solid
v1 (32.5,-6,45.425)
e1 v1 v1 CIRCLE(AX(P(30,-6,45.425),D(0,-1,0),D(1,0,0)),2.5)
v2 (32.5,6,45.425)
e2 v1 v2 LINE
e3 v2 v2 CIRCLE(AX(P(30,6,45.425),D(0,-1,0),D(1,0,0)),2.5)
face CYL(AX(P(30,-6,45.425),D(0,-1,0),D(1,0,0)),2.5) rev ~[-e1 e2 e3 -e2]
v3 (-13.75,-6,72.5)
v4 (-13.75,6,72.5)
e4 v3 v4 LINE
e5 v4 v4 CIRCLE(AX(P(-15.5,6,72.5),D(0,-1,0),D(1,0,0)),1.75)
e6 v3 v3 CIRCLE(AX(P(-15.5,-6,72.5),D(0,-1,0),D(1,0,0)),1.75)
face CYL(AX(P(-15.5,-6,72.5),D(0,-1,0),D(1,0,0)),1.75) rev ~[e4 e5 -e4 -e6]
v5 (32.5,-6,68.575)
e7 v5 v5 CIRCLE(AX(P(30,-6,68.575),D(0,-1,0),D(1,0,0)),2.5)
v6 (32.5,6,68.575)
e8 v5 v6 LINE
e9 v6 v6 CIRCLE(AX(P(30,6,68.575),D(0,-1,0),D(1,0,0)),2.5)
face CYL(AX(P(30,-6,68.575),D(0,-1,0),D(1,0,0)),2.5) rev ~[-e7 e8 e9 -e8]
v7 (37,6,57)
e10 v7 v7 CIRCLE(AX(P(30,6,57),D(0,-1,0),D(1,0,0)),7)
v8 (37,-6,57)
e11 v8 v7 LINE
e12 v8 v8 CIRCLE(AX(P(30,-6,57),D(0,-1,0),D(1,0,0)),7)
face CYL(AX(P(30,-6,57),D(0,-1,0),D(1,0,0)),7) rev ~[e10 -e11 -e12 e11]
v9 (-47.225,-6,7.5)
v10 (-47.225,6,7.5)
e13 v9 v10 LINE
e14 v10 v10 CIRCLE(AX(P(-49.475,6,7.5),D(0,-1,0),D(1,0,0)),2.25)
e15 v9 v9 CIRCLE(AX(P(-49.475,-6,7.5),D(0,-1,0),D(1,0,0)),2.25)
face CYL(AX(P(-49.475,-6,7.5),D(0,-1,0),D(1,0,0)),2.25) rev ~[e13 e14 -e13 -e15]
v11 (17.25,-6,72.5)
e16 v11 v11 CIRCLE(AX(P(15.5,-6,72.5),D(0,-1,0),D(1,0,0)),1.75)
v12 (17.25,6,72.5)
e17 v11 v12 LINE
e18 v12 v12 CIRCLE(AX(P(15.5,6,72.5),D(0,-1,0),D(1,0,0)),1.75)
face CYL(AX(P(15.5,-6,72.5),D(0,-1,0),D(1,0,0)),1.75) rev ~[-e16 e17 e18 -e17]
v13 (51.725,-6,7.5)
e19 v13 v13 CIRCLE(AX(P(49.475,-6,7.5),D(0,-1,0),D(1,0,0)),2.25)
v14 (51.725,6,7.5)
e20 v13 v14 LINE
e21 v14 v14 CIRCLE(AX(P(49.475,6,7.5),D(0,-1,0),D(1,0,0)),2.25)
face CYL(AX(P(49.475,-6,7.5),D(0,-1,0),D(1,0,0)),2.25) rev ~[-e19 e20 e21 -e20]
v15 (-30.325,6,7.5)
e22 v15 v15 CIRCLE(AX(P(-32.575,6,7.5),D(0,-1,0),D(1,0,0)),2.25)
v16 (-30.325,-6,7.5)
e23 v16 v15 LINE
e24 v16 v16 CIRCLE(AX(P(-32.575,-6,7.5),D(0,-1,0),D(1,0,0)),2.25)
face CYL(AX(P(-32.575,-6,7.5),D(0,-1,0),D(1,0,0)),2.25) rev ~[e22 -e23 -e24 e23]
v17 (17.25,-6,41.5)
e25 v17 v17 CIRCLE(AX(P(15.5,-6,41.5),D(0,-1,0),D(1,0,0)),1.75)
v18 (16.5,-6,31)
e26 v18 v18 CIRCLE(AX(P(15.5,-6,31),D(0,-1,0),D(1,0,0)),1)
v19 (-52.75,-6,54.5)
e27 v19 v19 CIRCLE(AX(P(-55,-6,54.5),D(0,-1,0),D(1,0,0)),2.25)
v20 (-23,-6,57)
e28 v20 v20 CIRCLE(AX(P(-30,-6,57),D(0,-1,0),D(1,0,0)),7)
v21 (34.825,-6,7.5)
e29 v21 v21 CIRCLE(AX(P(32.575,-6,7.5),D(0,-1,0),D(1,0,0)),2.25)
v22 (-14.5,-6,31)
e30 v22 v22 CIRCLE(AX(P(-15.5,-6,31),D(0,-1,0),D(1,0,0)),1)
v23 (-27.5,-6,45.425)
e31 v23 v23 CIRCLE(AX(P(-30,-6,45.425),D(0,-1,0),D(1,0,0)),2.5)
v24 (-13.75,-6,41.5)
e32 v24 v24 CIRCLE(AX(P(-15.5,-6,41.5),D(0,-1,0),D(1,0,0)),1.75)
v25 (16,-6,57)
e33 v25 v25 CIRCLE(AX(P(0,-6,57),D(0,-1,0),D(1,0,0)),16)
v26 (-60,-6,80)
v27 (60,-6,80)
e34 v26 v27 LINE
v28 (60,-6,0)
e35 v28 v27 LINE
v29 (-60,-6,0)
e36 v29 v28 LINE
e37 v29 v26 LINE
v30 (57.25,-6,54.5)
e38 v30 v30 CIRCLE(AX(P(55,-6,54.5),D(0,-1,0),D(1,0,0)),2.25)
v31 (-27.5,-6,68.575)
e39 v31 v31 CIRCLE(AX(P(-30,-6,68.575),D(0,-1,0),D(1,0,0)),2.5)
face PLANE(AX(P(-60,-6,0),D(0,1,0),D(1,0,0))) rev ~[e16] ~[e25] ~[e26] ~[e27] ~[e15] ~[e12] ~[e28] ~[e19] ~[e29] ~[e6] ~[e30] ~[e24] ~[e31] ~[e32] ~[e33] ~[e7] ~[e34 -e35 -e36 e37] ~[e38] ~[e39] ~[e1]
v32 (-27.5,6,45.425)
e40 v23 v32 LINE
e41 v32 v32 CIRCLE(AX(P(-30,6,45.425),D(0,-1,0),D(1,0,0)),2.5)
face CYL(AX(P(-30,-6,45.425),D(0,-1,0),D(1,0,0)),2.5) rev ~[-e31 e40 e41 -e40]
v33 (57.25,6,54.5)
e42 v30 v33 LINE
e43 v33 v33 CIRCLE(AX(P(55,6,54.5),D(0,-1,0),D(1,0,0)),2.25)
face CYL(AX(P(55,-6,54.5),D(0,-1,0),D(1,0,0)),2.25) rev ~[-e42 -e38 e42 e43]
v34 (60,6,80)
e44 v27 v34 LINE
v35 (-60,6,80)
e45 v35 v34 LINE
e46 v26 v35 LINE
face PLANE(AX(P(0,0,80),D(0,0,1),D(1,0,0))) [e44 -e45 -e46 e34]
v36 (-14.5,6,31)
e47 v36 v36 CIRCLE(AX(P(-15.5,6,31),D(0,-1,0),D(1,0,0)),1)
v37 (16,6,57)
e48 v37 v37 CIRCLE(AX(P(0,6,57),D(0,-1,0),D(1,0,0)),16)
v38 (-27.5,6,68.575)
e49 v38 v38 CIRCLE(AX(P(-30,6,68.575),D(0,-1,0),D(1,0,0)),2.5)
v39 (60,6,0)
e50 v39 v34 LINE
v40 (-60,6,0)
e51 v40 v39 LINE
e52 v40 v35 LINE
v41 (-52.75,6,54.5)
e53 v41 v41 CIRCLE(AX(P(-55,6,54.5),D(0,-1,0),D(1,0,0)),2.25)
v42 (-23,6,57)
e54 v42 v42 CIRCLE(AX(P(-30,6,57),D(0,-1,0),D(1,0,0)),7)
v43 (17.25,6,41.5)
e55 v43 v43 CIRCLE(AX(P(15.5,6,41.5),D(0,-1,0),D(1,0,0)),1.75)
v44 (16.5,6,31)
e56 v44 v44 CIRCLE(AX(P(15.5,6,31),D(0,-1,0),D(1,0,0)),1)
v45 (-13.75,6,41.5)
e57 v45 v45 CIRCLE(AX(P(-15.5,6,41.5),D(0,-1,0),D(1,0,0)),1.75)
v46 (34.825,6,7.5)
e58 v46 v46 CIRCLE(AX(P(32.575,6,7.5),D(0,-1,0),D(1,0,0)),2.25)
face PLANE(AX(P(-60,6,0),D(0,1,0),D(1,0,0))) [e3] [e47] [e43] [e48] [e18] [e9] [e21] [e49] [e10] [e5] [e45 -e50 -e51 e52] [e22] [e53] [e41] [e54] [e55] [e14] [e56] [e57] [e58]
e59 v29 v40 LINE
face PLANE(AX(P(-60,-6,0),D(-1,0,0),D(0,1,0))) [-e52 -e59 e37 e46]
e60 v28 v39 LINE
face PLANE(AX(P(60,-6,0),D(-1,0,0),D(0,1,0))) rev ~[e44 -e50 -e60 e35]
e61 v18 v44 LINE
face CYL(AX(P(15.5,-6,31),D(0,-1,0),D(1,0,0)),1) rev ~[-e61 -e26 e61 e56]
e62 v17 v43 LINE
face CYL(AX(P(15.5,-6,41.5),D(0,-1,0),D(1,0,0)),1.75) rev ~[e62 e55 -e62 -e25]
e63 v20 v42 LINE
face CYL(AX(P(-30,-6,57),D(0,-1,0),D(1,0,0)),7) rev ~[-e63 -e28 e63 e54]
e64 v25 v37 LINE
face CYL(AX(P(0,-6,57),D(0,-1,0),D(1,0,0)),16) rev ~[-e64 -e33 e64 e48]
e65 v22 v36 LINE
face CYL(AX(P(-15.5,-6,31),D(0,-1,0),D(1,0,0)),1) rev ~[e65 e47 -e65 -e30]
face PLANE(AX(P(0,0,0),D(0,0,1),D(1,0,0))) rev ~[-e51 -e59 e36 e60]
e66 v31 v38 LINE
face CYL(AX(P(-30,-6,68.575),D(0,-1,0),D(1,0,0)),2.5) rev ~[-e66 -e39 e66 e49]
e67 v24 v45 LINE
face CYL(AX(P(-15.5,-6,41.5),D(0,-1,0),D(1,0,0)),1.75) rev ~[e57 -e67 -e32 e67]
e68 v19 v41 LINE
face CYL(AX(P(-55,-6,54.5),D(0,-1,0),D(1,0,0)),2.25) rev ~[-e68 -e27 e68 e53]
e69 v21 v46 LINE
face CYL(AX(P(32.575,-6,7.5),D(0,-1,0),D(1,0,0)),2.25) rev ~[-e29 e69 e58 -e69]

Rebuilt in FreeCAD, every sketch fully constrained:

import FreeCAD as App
import Part
import Sketcher

doc = App.newDocument("Part")
body = doc.addObject("PartDesign::Body", "Body")

# Sketch on XY plane
sketch1 = body.newObject("Sketcher::SketchObject", "Sketch")
sketch1.AttachmentSupport = (doc.getObject("XY_Plane"), [""])
sketch1.MapMode = "FlatFace"
sketch1.addGeometry([
    Part.LineSegment(App.Vector(-60, 6, 0), App.Vector(-60, -6, 0)),
    Part.LineSegment(App.Vector(-60, -6, 0), App.Vector(60, -6, 0)),
    Part.LineSegment(App.Vector(60, -6, 0), App.Vector(60, 6, 0)),
    Part.LineSegment(App.Vector(60, 6, 0), App.Vector(-60, 6, 0)),
], False)
sketch1.addConstraint([
    Sketcher.Constraint("Coincident", 0, 2, 1, 1),
    Sketcher.Constraint("Coincident", 1, 2, 2, 1),
    Sketcher.Constraint("Coincident", 2, 2, 3, 1),
    Sketcher.Constraint("Coincident", 3, 2, 0, 1),
    Sketcher.Constraint("Vertical", 0),
    Sketcher.Constraint("Horizontal", 1),
    Sketcher.Constraint("Vertical", 2),
    Sketcher.Constraint("Horizontal", 3),
    Sketcher.Constraint("Symmetric", 0, 2, 2, 2, -1, 1),
    Sketcher.Constraint("DistanceX", 1, 1, 1, 2, 120.0),
    Sketcher.Constraint("DistanceY", 0, 2, 0, 1, 12.0),
])
pad1 = body.newObject("PartDesign::Pad", "Pad")
pad1.Profile = sketch1
pad1.Length = 80

# Sketch on XZ plane
sketch2 = body.newObject("Sketcher::SketchObject", "Sketch001")
sketch2.AttachmentSupport = (doc.getObject("XZ_Plane"), [""])
sketch2.MapMode = "FlatFace"
sketch2.AttachmentOffset = App.Placement(App.Vector(0, 0, 6), App.Rotation())
sketch2.addGeometry([
    Part.Circle(App.Vector(-49.5, 7.5, 0), App.Vector(0, 0, 1), 2.2),  # 0
    Part.Circle(App.Vector(-32.6, 7.5, 0), App.Vector(0, 0, 1), 2.2),  # 1
    Part.Circle(App.Vector(32.6, 7.5, 0), App.Vector(0, 0, 1), 2.2),  # 2
    Part.Circle(App.Vector(49.5, 7.5, 0), App.Vector(0, 0, 1), 2.2),  # 3
    Part.Circle(App.Vector(-30, 57, 0), App.Vector(0, 0, 1), 7),  # 4
    Part.Circle(App.Vector(30, 57, 0), App.Vector(0, 0, 1), 7),  # 5
    Part.Circle(App.Vector(0, 57, 0), App.Vector(0, 0, 1), 16),  # 6
    Part.Circle(App.Vector(-15.5, 72.5, 0), App.Vector(0, 0, 1), 1.8),  # 7
    Part.Circle(App.Vector(-15.5, 41.5, 0), App.Vector(0, 0, 1), 1.8),  # 8
    Part.Circle(App.Vector(15.5, 41.5, 0), App.Vector(0, 0, 1), 1.8),  # 9
    Part.Circle(App.Vector(15.5, 72.5, 0), App.Vector(0, 0, 1), 1.8),  # 10
    Part.Circle(App.Vector(-30, 68.6, 0), App.Vector(0, 0, 1), 2.5),  # 11
    Part.Circle(App.Vector(-30, 45.4, 0), App.Vector(0, 0, 1), 2.5),  # 12
    Part.Circle(App.Vector(30, 68.6, 0), App.Vector(0, 0, 1), 2.5),  # 13
    Part.Circle(App.Vector(30, 45.4, 0), App.Vector(0, 0, 1), 2.5),  # 14
    Part.Circle(App.Vector(-55, 54.5, 0), App.Vector(0, 0, 1), 2.2),  # 15
    Part.Circle(App.Vector(55, 54.5, 0), App.Vector(0, 0, 1), 2.2),  # 16
    Part.Circle(App.Vector(-15.5, 31, 0), App.Vector(0, 0, 1), 1),  # 17
    Part.Circle(App.Vector(15.5, 31, 0), App.Vector(0, 0, 1), 1),  # 18
], False)
sketch2.addConstraint([
    Sketcher.Constraint("Equal", 0, 1),
    Sketcher.Constraint("Equal", 1, 2),
    Sketcher.Constraint("Equal", 2, 3),
    Sketcher.Constraint("Equal", 4, 5),
    Sketcher.Constraint("Equal", 7, 8),
    Sketcher.Constraint("Equal", 8, 9),
    Sketcher.Constraint("Equal", 9, 10),
    Sketcher.Constraint("Equal", 11, 12),
    Sketcher.Constraint("Equal", 12, 13),
    Sketcher.Constraint("Equal", 13, 14),
    Sketcher.Constraint("Equal", 3, 15),
    Sketcher.Constraint("Equal", 15, 16),
    Sketcher.Constraint("Equal", 17, 18),
    Sketcher.Constraint("Symmetric", 1, 3, 2, 3, -2),
    Sketcher.Constraint("Symmetric", 0, 3, 3, 3, -2),
    Sketcher.Constraint("Symmetric", 4, 3, 5, 3, -2),
    Sketcher.Constraint("Symmetric", 8, 3, 9, 3, -2),
    Sketcher.Constraint("Symmetric", 7, 3, 10, 3, -2),
    Sketcher.Constraint("Symmetric", 11, 3, 13, 3, -2),
    Sketcher.Constraint("Symmetric", 12, 3, 14, 3, -2),
    Sketcher.Constraint("Symmetric", 15, 3, 16, 3, -2),
    Sketcher.Constraint("Symmetric", 17, 3, 18, 3, -2),
    Sketcher.Constraint("PointOnObject", 6, 3, -2),
    Sketcher.Constraint("Horizontal", 0, 3, 1, 3),
    Sketcher.Constraint("Horizontal", 5, 3, 6, 3),
    Sketcher.Constraint("Vertical", 7, 3, 8, 3),
    Sketcher.Constraint("Vertical", 4, 3, 11, 3),
    Sketcher.Constraint("Vertical", 11, 3, 12, 3),
    Sketcher.Constraint("Vertical", 8, 3, 17, 3),
    Sketcher.Constraint("Diameter", 4, 14.0),
    Sketcher.Constraint("Diameter", 6, 32.0),
    Sketcher.Constraint("Diameter", 11, 5.0),
    Sketcher.Constraint("Diameter", 17, 2.0),
    Sketcher.Constraint("Diameter", 0, 4.5),
    Sketcher.Constraint("Diameter", 7, 3.5),
    Sketcher.Constraint("DistanceX", 4, 3, -1, 1, 30.0),
    Sketcher.Constraint("DistanceY", -1, 1, 4, 3, 57.0),
    Sketcher.Constraint("DistanceX", 15, 3, -1, 1, 55.0),
    Sketcher.Constraint("DistanceY", -1, 1, 17, 3, 31.0),
    Sketcher.Constraint("DistanceY", 1, 3, 7, 3, 65.0),
    Sketcher.Constraint("DistanceY", 8, 3, 7, 3, 31.0),
    Sketcher.Constraint("DistanceX", 8, 3, 9, 3, 31.0),
    Sketcher.Constraint("DistanceY", 8, 3, 15, 3, 13.0),
    Sketcher.Constraint("DistanceY", -1, 1, 0, 3, 7.5),
    Sketcher.Constraint("DistanceX", 0, 3, 1, 3, 16.9),
    Sketcher.Constraint("DistanceX", 1, 3, 2, 3, 65.15),
    Sketcher.Constraint("DistanceY", 12, 3, 11, 3, 23.15),
    Sketcher.Constraint("DistanceY", -1, 1, 11, 3, 68.575),
])
pocket1 = body.newObject("PartDesign::Pocket", "Pocket")
pocket1.Profile = sketch2
pocket1.Type = "ThroughAll"

doc.recompute()
